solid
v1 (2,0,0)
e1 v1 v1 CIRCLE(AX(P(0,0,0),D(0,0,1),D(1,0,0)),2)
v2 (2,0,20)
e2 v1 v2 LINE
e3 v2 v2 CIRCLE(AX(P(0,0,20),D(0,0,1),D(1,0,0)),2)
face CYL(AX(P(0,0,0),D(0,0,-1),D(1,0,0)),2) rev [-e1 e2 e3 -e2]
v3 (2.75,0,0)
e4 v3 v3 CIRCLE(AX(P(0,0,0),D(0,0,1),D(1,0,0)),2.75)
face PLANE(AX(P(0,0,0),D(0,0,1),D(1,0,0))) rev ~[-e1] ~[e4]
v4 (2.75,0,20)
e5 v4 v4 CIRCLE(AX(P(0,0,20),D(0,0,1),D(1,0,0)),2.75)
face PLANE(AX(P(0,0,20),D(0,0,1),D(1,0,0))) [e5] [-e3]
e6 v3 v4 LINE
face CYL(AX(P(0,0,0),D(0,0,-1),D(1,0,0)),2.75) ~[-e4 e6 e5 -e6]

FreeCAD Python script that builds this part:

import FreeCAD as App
import Part
import Sketcher

V = App.Vector
Q = App.Units.Quantity

doc = App.newDocument("Part")
body = doc.addObject("PartDesign::Body", "Body")

sketch1 = body.newObject("Sketcher::SketchObject", "Sketch")
sketch1.AttachmentSupport = (doc.getObject("XY_Plane"), [""])
sketch1.MapMode = "FlatFace"
sketch1.addGeometry(Part.Circle(V(0, 0, 0), V(0, 0, 1), 2.75), False)
sketch1.addGeometry(Part.Circle(V(0, 0, 0), V(0, 0, 1), 2), False)
sketch1.addConstraint(Sketcher.Constraint("Coincident", 0, 3, -1, 1))
sketch1.addConstraint(Sketcher.Constraint("Coincident", 1, 3, -1, 1))
sketch1.addConstraint(Sketcher.Constraint("Diameter", 1, Q("4 mm")))
sketch1.addConstraint(Sketcher.Constraint("Diameter", 0, Q("5.5 mm")))
pad1 = body.newObject("PartDesign::Pad", "Pad")
pad1.Profile = sketch1
pad1.Length = 20

doc.recompute()
